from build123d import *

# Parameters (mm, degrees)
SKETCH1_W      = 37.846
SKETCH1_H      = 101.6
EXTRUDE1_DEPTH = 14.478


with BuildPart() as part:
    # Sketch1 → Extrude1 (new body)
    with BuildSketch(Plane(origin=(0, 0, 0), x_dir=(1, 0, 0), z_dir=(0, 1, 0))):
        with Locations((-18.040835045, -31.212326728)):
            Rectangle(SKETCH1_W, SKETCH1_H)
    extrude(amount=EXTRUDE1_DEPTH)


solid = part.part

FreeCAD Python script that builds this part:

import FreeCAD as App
import Part
import Sketcher
Q = App.Units.Quantity

doc = App.newDocument("Part")
body = doc.addObject("PartDesign::Body", "Body")

# Sketch on XZ plane
sketch1 = body.newObject("Sketcher::SketchObject", "Sketch")
sketch1.AttachmentSupport = (doc.getObject("XZ_Plane"), [""])
sketch1.MapMode = "FlatFace"
sketch1.addGeometry(Part.LineSegment(App.Vector(-36.963835, -19.587673, 0), App.Vector(-36.963835, 82.012327, 0)), False)
sketch1.addGeometry(Part.LineSegment(App.Vector(-36.963835, 82.012327, 0), App.Vector(0.882165, 82.012327, 0)), False)
sketch1.addGeometry(Part.LineSegment(App.Vector(0.882165, 82.012327, 0), App.Vector(0.882165, -19.587673, 0)), False)
sketch1.addGeometry(Part.LineSegment(App.Vector(0.882165, -19.587673, 0), App.Vector(-36.963835, -19.587673, 0)), False)
sketch1.addConstraint(Sketcher.Constraint("Coincident", 0, 2, 1, 1))
sketch1.addConstraint(Sketcher.Constraint("Coincident", 1, 2, 2, 1))
sketch1.addConstraint(Sketcher.Constraint("Coincident", 2, 2, 3, 1))
sketch1.addConstraint(Sketcher.Constraint("Coincident", 3, 2, 0, 1))
sketch1.addConstraint(Sketcher.Constraint("Vertical", 0))
sketch1.addConstraint(Sketcher.Constraint("Horizontal", 1))
sketch1.addConstraint(Sketcher.Constraint("Vertical", 2))
sketch1.addConstraint(Sketcher.Constraint("Horizontal", 3))
sketch1.addConstraint(Sketcher.Constraint("DistanceY", 0, 1, 0, 2, Q("4 in")))
sketch1.addConstraint(Sketcher.Constraint("DistanceX", 1, 1, 1, 2, Q("1.49 in")))
sketch1.addConstraint(Sketcher.Constraint("DistanceX", 0, 2, -1, 1, Q("36.963835 mm")))
sketch1.addConstraint(Sketcher.Constraint("DistanceY", -1, 1, 0, 2, Q("82.012327 mm")))
pad1 = body.newObject("PartDesign::Pad", "Pad")
pad1.Profile = sketch1
pad1.Length = Q("0.57 in")
pad1.Reversed = True

doc.recompute()
